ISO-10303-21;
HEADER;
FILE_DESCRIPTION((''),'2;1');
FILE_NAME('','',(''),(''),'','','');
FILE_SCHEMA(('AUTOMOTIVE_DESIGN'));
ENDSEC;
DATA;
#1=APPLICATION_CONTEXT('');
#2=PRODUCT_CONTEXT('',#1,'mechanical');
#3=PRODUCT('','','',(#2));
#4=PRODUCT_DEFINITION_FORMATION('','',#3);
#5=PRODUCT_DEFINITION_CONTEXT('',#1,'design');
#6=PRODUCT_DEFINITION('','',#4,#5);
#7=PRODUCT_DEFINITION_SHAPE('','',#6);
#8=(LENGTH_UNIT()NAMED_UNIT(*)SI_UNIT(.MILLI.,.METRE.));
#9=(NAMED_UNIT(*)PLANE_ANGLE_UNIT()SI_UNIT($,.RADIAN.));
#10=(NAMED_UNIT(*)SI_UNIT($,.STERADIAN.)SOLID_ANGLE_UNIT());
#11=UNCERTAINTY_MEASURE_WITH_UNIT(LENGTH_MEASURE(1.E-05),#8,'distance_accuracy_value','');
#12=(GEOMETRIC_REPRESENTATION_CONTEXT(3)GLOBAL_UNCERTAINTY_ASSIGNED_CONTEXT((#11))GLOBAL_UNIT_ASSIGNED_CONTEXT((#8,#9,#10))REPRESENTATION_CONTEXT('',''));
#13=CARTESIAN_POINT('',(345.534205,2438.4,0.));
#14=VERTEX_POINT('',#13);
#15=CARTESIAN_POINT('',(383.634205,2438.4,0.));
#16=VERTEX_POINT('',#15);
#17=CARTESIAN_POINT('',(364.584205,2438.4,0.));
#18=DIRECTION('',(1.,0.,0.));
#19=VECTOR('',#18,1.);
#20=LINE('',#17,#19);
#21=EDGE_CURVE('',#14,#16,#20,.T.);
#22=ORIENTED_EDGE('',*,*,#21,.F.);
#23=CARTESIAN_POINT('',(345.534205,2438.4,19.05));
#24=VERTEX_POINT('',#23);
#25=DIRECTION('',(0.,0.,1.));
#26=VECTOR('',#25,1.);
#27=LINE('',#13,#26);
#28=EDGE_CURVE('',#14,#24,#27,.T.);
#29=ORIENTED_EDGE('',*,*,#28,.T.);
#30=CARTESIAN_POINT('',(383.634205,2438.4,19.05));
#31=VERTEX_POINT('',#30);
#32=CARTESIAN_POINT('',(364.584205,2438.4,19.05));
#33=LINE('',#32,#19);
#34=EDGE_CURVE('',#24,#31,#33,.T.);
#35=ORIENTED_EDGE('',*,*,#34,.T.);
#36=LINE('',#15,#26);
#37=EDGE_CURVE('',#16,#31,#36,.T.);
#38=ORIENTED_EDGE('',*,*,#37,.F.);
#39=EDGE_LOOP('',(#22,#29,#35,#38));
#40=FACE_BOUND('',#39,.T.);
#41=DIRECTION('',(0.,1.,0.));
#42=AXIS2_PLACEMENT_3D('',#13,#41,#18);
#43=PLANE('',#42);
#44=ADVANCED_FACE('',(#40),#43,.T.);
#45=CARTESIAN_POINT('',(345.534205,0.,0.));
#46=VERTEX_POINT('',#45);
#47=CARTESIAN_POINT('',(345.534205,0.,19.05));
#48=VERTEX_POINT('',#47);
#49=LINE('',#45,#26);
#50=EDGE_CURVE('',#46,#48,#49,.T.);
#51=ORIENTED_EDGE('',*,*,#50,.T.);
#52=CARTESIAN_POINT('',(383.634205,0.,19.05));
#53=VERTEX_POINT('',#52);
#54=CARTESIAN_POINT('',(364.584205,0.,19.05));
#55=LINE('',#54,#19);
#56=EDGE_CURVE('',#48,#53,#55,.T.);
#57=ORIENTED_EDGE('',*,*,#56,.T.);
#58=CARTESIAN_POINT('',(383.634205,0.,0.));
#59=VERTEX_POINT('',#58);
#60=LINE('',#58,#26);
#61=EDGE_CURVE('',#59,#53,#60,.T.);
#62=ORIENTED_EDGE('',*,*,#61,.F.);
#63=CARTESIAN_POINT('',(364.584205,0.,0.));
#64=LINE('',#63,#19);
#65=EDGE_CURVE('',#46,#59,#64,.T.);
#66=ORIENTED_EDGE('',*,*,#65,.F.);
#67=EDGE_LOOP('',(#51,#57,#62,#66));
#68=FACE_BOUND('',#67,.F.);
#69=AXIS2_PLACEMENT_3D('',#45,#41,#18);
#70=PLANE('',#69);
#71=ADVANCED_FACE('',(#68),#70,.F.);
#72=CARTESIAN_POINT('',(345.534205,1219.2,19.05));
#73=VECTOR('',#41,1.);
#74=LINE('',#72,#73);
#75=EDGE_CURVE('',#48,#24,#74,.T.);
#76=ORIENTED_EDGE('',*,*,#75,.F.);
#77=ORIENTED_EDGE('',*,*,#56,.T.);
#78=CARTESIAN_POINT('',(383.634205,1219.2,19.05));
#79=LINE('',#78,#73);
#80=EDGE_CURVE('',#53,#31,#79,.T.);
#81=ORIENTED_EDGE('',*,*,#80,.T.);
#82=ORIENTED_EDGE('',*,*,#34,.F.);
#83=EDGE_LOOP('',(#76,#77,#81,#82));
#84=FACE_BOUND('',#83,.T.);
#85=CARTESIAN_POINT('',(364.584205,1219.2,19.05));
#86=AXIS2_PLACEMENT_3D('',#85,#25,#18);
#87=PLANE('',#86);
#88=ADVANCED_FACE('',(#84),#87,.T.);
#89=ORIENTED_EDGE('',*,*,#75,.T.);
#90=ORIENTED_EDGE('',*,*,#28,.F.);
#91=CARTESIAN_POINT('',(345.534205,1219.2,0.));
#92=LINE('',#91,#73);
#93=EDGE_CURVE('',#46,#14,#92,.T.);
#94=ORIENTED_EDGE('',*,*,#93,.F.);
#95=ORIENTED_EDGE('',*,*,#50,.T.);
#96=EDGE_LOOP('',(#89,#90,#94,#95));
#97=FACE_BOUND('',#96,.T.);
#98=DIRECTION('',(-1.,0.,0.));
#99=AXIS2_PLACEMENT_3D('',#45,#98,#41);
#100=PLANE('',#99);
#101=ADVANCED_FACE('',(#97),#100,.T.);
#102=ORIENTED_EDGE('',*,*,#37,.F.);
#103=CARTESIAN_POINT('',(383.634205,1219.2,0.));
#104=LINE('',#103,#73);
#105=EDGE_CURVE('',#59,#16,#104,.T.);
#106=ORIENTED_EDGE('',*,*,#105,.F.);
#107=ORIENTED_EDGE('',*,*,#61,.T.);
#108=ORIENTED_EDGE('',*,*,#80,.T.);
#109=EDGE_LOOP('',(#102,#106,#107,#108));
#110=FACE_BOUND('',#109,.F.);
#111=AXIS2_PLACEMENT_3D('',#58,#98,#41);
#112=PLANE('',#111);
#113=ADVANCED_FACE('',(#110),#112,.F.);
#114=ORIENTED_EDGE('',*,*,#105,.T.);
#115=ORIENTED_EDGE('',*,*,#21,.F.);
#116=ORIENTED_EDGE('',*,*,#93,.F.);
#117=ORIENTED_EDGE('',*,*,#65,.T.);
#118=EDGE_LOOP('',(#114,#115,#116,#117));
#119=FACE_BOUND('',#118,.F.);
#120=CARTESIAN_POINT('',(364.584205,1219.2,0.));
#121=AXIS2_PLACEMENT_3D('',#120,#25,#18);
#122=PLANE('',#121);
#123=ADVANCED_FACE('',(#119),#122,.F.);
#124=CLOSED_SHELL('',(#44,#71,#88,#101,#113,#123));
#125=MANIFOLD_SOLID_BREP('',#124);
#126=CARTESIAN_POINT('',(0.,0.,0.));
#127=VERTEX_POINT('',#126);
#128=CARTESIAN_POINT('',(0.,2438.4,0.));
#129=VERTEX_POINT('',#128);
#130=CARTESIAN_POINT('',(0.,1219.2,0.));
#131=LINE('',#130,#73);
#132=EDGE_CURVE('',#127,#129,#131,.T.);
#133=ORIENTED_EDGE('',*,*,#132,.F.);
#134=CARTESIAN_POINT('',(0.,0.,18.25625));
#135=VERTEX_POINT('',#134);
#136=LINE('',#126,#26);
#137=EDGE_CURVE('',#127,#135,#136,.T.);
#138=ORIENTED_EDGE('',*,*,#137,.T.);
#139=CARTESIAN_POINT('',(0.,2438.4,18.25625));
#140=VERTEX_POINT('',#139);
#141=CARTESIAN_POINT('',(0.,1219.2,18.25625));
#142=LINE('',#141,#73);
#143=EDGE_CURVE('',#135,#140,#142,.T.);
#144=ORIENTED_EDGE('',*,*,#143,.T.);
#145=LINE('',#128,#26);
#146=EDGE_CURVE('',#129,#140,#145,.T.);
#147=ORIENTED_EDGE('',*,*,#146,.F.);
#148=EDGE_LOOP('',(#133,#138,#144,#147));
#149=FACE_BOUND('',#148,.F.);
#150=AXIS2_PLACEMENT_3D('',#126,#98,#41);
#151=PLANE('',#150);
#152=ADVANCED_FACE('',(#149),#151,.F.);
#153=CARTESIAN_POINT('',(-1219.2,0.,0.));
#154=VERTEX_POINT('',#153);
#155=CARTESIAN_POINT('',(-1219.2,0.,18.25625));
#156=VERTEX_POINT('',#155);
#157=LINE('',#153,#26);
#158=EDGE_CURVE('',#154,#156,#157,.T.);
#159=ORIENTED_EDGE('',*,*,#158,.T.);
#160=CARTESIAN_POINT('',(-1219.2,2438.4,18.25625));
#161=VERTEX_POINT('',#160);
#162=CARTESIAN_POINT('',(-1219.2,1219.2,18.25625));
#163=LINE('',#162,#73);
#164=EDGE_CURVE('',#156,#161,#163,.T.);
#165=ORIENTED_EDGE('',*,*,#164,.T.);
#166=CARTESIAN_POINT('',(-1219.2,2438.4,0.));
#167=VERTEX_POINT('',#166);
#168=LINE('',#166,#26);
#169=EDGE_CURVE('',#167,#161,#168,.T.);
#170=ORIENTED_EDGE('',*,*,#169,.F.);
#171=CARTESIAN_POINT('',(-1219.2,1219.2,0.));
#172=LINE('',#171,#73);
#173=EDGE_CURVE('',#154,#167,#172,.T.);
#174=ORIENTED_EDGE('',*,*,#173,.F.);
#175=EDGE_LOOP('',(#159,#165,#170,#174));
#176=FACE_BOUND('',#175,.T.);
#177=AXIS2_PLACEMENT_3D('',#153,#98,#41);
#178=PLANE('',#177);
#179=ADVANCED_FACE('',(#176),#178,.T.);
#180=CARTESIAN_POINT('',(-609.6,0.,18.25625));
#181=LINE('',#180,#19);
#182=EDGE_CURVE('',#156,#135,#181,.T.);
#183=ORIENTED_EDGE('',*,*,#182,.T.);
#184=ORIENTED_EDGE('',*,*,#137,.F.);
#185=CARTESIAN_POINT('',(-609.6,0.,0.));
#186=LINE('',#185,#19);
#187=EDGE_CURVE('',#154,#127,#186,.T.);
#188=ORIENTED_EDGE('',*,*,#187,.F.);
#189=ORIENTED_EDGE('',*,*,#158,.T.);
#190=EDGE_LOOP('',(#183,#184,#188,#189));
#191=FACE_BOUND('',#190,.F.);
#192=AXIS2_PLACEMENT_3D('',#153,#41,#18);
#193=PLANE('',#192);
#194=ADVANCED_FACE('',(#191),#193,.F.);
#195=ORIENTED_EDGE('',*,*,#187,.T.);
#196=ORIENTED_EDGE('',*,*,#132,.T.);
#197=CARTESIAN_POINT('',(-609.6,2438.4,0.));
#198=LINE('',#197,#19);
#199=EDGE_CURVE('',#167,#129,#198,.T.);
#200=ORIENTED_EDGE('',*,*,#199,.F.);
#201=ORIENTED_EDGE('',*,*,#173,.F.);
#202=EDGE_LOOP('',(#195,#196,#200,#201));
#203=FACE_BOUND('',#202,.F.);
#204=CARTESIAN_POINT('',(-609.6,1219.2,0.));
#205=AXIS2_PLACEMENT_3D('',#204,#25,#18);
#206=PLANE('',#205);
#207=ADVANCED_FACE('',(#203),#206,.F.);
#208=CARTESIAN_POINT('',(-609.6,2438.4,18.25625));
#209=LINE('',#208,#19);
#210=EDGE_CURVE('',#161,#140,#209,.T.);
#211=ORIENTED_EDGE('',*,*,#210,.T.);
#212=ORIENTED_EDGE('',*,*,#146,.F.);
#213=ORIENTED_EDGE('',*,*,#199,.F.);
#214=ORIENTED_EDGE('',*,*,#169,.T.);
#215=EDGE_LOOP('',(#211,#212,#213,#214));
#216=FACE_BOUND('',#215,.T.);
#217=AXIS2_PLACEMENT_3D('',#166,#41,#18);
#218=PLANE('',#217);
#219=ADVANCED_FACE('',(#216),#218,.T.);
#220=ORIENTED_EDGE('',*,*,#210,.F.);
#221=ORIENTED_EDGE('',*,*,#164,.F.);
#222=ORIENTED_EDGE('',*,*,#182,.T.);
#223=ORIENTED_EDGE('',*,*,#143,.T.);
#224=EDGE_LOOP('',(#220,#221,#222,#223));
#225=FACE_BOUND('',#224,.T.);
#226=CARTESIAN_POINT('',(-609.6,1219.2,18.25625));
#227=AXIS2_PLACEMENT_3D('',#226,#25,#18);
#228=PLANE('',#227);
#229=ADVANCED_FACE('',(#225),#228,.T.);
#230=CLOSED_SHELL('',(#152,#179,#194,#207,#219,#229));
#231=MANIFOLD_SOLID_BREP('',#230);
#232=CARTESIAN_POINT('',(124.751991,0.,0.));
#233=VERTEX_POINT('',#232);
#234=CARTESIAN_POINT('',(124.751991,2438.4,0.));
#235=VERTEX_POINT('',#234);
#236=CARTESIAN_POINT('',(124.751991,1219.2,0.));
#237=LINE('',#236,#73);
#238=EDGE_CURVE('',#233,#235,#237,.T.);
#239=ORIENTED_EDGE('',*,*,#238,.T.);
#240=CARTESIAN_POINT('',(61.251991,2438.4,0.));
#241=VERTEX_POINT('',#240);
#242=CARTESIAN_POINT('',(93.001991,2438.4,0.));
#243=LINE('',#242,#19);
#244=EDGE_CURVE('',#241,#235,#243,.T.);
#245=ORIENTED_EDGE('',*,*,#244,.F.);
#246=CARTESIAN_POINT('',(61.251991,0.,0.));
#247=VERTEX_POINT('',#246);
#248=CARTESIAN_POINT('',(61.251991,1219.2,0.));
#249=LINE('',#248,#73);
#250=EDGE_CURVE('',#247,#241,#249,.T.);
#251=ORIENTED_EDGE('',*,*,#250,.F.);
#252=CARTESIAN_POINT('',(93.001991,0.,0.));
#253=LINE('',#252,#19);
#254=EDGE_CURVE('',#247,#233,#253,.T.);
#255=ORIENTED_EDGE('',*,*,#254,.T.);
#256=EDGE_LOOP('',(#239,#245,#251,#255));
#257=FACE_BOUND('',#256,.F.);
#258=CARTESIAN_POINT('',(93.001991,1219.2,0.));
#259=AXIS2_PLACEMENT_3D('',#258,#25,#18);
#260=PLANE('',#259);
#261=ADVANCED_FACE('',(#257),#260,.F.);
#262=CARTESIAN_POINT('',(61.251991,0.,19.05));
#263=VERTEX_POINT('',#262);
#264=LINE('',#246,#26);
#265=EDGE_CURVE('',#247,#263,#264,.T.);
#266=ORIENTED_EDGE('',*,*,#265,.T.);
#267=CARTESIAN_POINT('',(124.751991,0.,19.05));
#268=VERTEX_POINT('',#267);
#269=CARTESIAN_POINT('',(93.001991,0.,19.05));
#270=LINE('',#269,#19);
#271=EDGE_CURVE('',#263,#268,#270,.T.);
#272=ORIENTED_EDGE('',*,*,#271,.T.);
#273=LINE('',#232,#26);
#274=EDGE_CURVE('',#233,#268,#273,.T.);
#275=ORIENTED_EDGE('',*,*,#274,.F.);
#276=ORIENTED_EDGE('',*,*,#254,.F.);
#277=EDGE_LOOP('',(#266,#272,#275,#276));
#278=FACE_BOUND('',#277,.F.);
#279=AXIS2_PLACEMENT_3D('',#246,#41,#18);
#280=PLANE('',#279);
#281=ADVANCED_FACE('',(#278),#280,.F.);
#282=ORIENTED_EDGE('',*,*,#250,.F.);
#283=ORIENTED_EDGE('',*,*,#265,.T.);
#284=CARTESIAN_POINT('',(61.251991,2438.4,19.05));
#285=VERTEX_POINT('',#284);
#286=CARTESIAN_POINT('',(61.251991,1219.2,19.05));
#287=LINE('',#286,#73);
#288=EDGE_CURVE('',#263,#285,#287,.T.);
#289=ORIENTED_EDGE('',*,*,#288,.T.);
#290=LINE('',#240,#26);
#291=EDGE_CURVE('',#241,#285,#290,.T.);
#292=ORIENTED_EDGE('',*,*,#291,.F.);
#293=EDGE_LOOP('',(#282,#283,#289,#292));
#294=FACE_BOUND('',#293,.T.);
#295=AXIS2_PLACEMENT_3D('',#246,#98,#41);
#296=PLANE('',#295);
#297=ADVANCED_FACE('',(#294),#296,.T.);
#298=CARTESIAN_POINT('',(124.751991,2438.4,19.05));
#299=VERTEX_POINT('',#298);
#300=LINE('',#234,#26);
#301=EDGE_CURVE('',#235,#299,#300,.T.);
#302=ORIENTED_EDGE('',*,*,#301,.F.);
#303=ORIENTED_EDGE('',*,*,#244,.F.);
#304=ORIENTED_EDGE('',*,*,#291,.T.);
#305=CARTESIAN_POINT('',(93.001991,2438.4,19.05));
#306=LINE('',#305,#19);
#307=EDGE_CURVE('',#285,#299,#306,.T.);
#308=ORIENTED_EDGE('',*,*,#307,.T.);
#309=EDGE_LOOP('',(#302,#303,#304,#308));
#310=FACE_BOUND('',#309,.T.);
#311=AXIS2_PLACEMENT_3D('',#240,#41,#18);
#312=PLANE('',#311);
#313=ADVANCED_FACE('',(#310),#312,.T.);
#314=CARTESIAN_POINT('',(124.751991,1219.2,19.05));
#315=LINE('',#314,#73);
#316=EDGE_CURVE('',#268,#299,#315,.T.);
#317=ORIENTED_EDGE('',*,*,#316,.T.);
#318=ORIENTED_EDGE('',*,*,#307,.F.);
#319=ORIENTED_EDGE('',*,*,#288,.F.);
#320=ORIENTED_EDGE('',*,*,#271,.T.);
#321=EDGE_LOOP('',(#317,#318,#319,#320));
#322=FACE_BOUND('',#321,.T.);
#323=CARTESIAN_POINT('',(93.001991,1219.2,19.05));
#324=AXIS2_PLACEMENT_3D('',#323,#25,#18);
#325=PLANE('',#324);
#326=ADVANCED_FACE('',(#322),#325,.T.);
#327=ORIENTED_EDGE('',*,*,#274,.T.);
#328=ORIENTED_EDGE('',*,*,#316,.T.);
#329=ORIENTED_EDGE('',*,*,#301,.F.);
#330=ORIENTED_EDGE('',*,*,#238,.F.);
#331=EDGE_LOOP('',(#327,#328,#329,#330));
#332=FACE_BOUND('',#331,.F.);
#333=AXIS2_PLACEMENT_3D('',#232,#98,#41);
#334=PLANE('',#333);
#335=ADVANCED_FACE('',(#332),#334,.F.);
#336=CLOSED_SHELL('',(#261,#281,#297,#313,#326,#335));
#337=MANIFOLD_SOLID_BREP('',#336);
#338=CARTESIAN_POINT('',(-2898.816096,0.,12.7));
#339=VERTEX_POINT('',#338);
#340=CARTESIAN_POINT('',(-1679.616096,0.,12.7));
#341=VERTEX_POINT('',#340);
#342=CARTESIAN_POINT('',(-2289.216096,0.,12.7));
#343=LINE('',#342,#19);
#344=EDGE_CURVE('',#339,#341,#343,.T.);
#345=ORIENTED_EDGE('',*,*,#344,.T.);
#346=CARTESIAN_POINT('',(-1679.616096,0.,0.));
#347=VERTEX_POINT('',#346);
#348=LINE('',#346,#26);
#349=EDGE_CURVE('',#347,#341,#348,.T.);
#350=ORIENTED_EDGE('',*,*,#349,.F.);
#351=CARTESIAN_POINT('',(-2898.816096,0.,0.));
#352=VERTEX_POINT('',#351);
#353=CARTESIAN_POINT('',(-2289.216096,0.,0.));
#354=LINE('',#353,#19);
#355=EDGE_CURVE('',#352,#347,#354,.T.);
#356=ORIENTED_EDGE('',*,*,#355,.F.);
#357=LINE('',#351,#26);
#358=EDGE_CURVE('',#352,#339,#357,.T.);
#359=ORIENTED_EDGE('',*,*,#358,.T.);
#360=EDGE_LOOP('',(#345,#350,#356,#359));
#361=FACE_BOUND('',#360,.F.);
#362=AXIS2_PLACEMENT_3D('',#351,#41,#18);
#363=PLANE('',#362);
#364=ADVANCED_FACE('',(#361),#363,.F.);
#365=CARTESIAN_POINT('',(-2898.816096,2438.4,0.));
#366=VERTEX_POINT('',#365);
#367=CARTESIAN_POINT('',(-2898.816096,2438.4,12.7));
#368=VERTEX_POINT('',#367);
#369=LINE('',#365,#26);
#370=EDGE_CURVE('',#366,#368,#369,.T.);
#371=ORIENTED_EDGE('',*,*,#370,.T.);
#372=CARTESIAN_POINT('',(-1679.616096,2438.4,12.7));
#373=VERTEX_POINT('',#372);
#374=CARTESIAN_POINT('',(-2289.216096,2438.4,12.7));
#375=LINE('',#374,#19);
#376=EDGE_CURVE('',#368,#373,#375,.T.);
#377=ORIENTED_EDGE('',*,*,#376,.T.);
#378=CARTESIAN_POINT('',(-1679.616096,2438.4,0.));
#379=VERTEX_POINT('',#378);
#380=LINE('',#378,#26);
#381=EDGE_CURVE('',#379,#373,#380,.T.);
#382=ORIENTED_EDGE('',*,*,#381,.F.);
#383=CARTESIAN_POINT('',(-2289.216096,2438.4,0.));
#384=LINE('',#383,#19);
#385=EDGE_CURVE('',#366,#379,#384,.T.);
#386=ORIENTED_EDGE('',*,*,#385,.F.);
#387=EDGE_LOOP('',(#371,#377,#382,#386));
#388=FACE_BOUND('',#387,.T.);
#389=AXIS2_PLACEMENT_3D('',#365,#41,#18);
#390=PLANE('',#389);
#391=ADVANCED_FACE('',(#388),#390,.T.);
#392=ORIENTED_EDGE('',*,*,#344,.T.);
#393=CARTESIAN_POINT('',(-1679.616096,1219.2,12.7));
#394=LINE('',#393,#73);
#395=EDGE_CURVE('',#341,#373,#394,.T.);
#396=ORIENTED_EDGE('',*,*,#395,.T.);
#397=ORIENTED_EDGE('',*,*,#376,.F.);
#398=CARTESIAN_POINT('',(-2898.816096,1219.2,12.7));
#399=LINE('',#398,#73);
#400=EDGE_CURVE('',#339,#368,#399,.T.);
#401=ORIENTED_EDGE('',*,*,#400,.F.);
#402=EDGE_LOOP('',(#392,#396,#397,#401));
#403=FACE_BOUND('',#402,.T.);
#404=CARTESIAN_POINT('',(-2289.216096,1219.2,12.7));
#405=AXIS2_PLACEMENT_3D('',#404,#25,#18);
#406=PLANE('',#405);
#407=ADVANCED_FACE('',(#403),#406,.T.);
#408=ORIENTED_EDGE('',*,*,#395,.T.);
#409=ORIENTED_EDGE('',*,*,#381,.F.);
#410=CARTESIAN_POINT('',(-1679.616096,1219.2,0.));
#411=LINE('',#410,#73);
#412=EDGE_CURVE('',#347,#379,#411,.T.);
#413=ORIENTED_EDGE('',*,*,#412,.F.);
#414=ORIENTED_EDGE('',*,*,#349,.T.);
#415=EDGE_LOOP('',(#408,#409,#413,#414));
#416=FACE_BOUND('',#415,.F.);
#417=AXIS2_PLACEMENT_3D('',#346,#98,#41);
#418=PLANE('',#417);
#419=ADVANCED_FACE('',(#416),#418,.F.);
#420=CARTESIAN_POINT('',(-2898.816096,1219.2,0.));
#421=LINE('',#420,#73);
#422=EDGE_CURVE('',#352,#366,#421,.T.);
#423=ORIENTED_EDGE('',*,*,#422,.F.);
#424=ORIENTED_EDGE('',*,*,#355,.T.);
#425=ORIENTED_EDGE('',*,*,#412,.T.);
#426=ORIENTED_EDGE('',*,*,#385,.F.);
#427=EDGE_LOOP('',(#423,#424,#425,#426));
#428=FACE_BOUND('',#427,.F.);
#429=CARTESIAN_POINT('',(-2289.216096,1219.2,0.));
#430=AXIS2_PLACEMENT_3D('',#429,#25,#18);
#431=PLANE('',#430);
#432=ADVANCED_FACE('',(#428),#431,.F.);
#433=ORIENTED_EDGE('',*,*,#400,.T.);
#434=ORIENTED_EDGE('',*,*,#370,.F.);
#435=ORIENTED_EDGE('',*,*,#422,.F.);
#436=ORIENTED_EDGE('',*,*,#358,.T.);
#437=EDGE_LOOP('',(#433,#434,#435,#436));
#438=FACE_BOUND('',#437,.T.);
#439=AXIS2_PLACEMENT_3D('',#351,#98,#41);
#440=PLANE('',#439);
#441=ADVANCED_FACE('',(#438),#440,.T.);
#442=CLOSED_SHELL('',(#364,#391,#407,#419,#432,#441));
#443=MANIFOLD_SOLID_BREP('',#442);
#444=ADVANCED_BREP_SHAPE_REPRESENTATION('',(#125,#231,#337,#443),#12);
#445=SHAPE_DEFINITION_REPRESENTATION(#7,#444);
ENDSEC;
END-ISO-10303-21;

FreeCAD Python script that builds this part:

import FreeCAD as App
import Part
import Sketcher

V = App.Vector
Q = App.Units.Quantity


def add_polygon(sketch, points):
    """Adds a closed chain of lines whose ends are joined by coincident constraints."""
    first, n = sketch.GeometryCount, len(points)
    for a, b in zip(points, points[1:] + points[:1]):
        sketch.addGeometry(Part.LineSegment(App.Vector(*a, 0), App.Vector(*b, 0)), False)
    for i in range(n):
        sketch.addConstraint(Sketcher.Constraint("Coincident", first + i, 2, first + (i + 1) % n, 1))

doc = App.newDocument("Part")
body = doc.addObject("PartDesign::Body", "Body")

# Sketch on XY plane
sketch1 = body.newObject("Sketcher::SketchObject", "Sketch")
sketch1.AttachmentSupport = (doc.getObject("XY_Plane"), [""])
sketch1.MapMode = "FlatFace"
add_polygon(sketch1, [(-1219, 2438), (-1219, 0), (0, 0), (0, 2438)])  # lines 0-3
sketch1.addConstraint([
    Sketcher.Constraint("Vertical", 0),
    Sketcher.Constraint("Horizontal", 1),
    Sketcher.Constraint("Vertical", 2),
    Sketcher.Constraint("Horizontal", 3),
    Sketcher.Constraint("Coincident", 1, 2, -1, 1),
    Sketcher.Constraint("DistanceX", 1, 1, 1, 2, Q("48 in")),
    Sketcher.Constraint("DistanceY", 0, 2, 0, 1, Q("96 in")),
])
pad1 = body.newObject("PartDesign::Pad", "Pad")
pad1.Profile = sketch1
pad1.Length = Q("0.71875 in")
body2 = doc.addObject("PartDesign::Body", "Body001")
body2.AllowCompound = True

# Sketch on XY plane
sketch2 = body2.newObject("Sketcher::SketchObject", "Sketch001")
sketch2.AttachmentSupport = (doc.getObject("XY_Plane001"), [""])
sketch2.MapMode = "FlatFace"
add_polygon(sketch2, [(61, 2438), (61, 0), (125, 0), (125, 2438)])  # lines 0-3
add_polygon(sketch2, [(346, 2438), (346, 0), (384, 0), (384, 2438)])  # lines 4-7
sketch2.addConstraint([
    Sketcher.Constraint("Vertical", 0),
    Sketcher.Constraint("Horizontal", 1),
    Sketcher.Constraint("Vertical", 2),
    Sketcher.Constraint("Horizontal", 3),
    Sketcher.Constraint("Vertical", 4),
    Sketcher.Constraint("Horizontal", 5),
    Sketcher.Constraint("Vertical", 6),
    Sketcher.Constraint("Horizontal", 7),
    Sketcher.Constraint("PointOnObject", 0, 2, -1),
    Sketcher.Constraint("PointOnObject", 4, 2, -1),
    Sketcher.Constraint("Horizontal", 3, 2, 6, 2),
    Sketcher.Constraint("DistanceY", 0, 2, 0, 1, Q("96 in")),
    Sketcher.Constraint("DistanceX", 1, 1, 1, 2, Q("2.5 in")),
    Sketcher.Constraint("DistanceX", 5, 1, 5, 2, Q("1.5 in")),
    Sketcher.Constraint("DistanceX", -1, 1, 0, 2, Q("61.251991 mm")),
    Sketcher.Constraint("DistanceX", -1, 1, 4, 2, Q("345.534205 mm")),
])
pad2 = body2.newObject("PartDesign::Pad", "Pad001")
pad2.Profile = sketch2
pad2.Length = Q("0.75 in")
body3 = doc.addObject("PartDesign::Body", "Body002")

# Sketch on XY plane
sketch3 = body3.newObject("Sketcher::SketchObject", "Sketch002")
sketch3.AttachmentSupport = (doc.getObject("XY_Plane002"), [""])
sketch3.MapMode = "FlatFace"
add_polygon(sketch3, [(-2899, 2438), (-2899, 0), (-1680, 0), (-1680, 2438)])  # lines 0-3
sketch3.addConstraint([
    Sketcher.Constraint("Vertical", 0),
    Sketcher.Constraint("Horizontal", 1),
    Sketcher.Constraint("Vertical", 2),
    Sketcher.Constraint("Horizontal", 3),
    Sketcher.Constraint("PointOnObject", 0, 2, -1),
    Sketcher.Constraint("DistanceX", 1, 1, 1, 2, Q("48 in")),
    Sketcher.Constraint("DistanceY", 0, 2, 0, 1, Q("96 in")),
    Sketcher.Constraint("DistanceX", 0, 2, -1, 1, Q("2898.816096 mm")),
])
pad3 = body3.newObject("PartDesign::Pad", "Pad002")
pad3.Profile = sketch3
pad3.Length = Q("0.5 in")

doc.recompute()
